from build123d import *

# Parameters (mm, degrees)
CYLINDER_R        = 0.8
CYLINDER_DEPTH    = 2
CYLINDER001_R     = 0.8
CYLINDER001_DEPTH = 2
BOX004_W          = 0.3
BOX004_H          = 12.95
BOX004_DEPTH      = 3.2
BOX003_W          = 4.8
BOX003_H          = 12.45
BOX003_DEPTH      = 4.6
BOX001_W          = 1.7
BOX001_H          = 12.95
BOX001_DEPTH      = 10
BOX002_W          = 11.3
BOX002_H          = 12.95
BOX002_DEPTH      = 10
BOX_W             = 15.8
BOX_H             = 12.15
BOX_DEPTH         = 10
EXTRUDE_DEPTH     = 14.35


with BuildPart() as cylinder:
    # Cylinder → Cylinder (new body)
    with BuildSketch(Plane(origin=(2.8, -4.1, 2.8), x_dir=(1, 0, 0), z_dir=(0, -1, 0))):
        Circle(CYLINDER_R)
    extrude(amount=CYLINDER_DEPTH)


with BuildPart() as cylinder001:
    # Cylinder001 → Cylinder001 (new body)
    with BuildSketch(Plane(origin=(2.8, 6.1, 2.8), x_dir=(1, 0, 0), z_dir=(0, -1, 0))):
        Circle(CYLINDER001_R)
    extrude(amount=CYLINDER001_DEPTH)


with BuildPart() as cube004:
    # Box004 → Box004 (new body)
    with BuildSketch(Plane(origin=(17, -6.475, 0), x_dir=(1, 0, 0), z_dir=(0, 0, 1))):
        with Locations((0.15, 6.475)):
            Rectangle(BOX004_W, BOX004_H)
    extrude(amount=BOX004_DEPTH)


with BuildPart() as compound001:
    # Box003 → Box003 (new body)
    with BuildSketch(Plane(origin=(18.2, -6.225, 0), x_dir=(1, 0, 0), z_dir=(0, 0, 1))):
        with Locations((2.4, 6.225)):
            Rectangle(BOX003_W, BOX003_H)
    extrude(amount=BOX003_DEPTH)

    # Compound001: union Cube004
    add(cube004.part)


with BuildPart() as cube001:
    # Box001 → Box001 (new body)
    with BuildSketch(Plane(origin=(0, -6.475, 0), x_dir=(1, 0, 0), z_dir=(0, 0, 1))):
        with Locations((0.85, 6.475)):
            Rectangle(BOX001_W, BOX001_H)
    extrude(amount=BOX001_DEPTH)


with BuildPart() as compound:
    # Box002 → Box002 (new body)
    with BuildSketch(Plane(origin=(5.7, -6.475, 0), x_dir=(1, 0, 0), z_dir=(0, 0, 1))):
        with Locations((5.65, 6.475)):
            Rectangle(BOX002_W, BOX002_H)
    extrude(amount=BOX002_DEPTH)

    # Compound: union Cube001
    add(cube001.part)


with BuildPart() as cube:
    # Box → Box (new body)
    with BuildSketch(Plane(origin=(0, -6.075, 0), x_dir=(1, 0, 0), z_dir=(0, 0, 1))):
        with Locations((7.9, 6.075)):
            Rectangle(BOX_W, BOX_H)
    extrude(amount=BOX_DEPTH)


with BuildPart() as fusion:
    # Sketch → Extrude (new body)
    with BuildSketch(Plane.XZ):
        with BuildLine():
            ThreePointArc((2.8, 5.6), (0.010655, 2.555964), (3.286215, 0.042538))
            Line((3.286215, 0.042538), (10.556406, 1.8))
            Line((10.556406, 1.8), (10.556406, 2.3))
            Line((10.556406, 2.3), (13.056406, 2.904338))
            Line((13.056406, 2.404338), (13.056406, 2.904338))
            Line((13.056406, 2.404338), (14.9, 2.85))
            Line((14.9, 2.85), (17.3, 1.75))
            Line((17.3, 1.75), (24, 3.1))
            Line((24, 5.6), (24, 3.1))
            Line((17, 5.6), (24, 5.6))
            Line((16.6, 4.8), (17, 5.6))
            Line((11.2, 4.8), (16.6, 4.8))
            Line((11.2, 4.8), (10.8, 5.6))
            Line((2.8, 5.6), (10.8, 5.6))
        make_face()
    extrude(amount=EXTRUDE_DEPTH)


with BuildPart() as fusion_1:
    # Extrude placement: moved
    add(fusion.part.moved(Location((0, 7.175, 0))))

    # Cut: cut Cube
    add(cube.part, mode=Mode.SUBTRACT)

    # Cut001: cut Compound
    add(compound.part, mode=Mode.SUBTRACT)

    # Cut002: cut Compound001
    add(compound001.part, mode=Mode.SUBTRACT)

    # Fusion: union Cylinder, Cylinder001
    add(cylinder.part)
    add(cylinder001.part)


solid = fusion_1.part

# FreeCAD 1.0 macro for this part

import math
import FreeCAD as App
import Part
import Sketcher
from FreeCAD import Vector
Q = App.Units.Quantity

doc = App.newDocument("Part")
body = doc.addObject("PartDesign::Body", "Body")

sketch1 = doc.addObject("Sketcher::SketchObject", "Sketch")
body.addObject(sketch1)
sketch1.AttachmentSupport = (doc.XZ_Plane, [""])
sketch1.MapMode = "FlatFace"
sketch1.AttachmentOffset = App.Placement(Vector(0, 0, 4.1), App.Rotation())
sketch1.addGeometry(Part.Circle(Vector(2.8, 2.8, 0), Vector(0, 0, 1), 0.8), False)
sketch1.addConstraint([
    Sketcher.Constraint("Diameter", 0, Q("1.6 mm")),
    Sketcher.Constraint("DistanceX", -1, 1, 0, 3, Q("2.8 mm")),
    Sketcher.Constraint("DistanceY", -1, 1, 0, 3, Q("2.8 mm")),
])
pad1 = doc.addObject("PartDesign::Pad", "Pad")
body.addObject(pad1)
pad1.Profile = sketch1
pad1.Length = 2
body2 = doc.addObject("PartDesign::Body", "Body001")

sketch2 = doc.addObject("Sketcher::SketchObject", "Sketch001")
body2.addObject(sketch2)
sketch2.AttachmentSupport = (doc.getObject("XZ_Plane001"), [""])
sketch2.MapMode = "FlatFace"
sketch2.AttachmentOffset = App.Placement(Vector(0, 0, -6.1), App.Rotation())
sketch2.addGeometry(Part.Circle(Vector(2.8, 2.8, 0), Vector(0, 0, 1), 0.8), False)
sketch2.addConstraint([
    Sketcher.Constraint("Diameter", 0, Q("1.6 mm")),
    Sketcher.Constraint("DistanceX", -1, 1, 0, 3, Q("2.8 mm")),
    Sketcher.Constraint("DistanceY", -1, 1, 0, 3, Q("2.8 mm")),
])
pad2 = doc.addObject("PartDesign::Pad", "Pad001")
body2.addObject(pad2)
pad2.Profile = sketch2
pad2.Length = 2
body3 = doc.addObject("PartDesign::Body", "Body002")

sketch3 = doc.addObject("Sketcher::SketchObject", "Sketch002")
body3.addObject(sketch3)
sketch3.AttachmentSupport = (doc.getObject("XY_Plane002"), [""])
sketch3.MapMode = "FlatFace"
sketch3.addGeometry([
    Part.LineSegment(Vector(17, 6.47, 0), Vector(17, -6.47, 0)),
    Part.LineSegment(Vector(17, -6.47, 0), Vector(17.3, -6.47, 0)),
    Part.LineSegment(Vector(17.3, -6.47, 0), Vector(17.3, 6.47, 0)),
    Part.LineSegment(Vector(17.3, 6.47, 0), Vector(17, 6.47, 0)),
], False)
sketch3.addConstraint([
    Sketcher.Constraint("Coincident", 0, 2, 1, 1),
    Sketcher.Constraint("Coincident", 1, 2, 2, 1),
    Sketcher.Constraint("Coincident", 2, 2, 3, 1),
    Sketcher.Constraint("Coincident", 3, 2, 0, 1),
    Sketcher.Constraint("Vertical", 0),
    Sketcher.Constraint("Horizontal", 1),
    Sketcher.Constraint("Vertical", 2),
    Sketcher.Constraint("Horizontal", 3),
    Sketcher.Constraint("DistanceX", 1, 1, 1, 2, Q("0.3 mm")),
    Sketcher.Constraint("DistanceX", -1, 1, 0, 2, Q("17 mm")),
    Sketcher.Constraint("DistanceY", 0, 2, 0, 1, Q("12.95 mm")),
    Sketcher.Constraint("DistanceY", 0, 2, -1, 1, Q("6.475 mm")),
])
pad3 = doc.addObject("PartDesign::Pad", "Pad002")
body3.addObject(pad3)
pad3.Profile = sketch3
pad3.Length = 3.2
body4 = doc.addObject("PartDesign::Body", "Body003")
body4.AllowCompound = True

sketch4 = doc.addObject("Sketcher::SketchObject", "Sketch003")
body4.addObject(sketch4)
sketch4.AttachmentSupport = (doc.getObject("XY_Plane003"), [""])
sketch4.MapMode = "FlatFace"
sketch4.addGeometry([
    Part.LineSegment(Vector(18.2, 6.2, 0), Vector(18.2, -6.2, 0)),
    Part.LineSegment(Vector(18.2, -6.2, 0), Vector(23, -6.2, 0)),
    Part.LineSegment(Vector(23, -6.2, 0), Vector(23, 6.2, 0)),
    Part.LineSegment(Vector(23, 6.2, 0), Vector(18.2, 6.2, 0)),
], False)
sketch4.addConstraint([
    Sketcher.Constraint("Coincident", 0, 2, 1, 1),
    Sketcher.Constraint("Coincident", 1, 2, 2, 1),
    Sketcher.Constraint("Coincident", 2, 2, 3, 1),
    Sketcher.Constraint("Coincident", 3, 2, 0, 1),
    Sketcher.Constraint("Vertical", 0),
    Sketcher.Constraint("Horizontal", 1),
    Sketcher.Constraint("Vertical", 2),
    Sketcher.Constraint("Horizontal", 3),
    Sketcher.Constraint("DistanceX", 1, 1, 1, 2, Q("4.8 mm")),
    Sketcher.Constraint("DistanceX", -1, 1, 1, 2, Q("23 mm")),
    Sketcher.Constraint("DistanceY", 0, 2, 0, 1, Q("12.45 mm")),
    Sketcher.Constraint("DistanceY", 0, 2, -1, 1, Q("6.225 mm")),
])
pad4 = doc.addObject("PartDesign::Pad", "Pad003")
body4.addObject(pad4)
pad4.Profile = sketch4
pad4.Length = 4.6
doc.recompute()

boolean = doc.addObject("PartDesign::Boolean", "Boolean")
body4.addObject(boolean)
boolean.Type = "Fuse"
boolean.addObjects([body3])
body5 = doc.addObject("PartDesign::Body", "Body004")

sketch5 = doc.addObject("Sketcher::SketchObject", "Sketch004")
body5.addObject(sketch5)
sketch5.AttachmentSupport = (doc.getObject("XY_Plane004"), [""])
sketch5.MapMode = "FlatFace"
sketch5.addGeometry([
    Part.LineSegment(Vector(0, 6.5, 0), Vector(0, -6.5, 0)),
    Part.LineSegment(Vector(0, -6.5, 0), Vector(1.7, -6.5, 0)),
    Part.LineSegment(Vector(1.7, -6.5, 0), Vector(1.7, 6.5, 0)),
    Part.LineSegment(Vector(1.7, 6.5, 0), Vector(0, 6.5, 0)),
], False)
sketch5.addConstraint([
    Sketcher.Constraint("Coincident", 0, 2, 1, 1),
    Sketcher.Constraint("Coincident", 1, 2, 2, 1),
    Sketcher.Constraint("Coincident", 2, 2, 3, 1),
    Sketcher.Constraint("Coincident", 3, 2, 0, 1),
    Sketcher.Constraint("Vertical", 0),
    Sketcher.Constraint("Horizontal", 1),
    Sketcher.Constraint("Vertical", 2),
    Sketcher.Constraint("Horizontal", 3),
    Sketcher.Constraint("Symmetric", 0, 2, 3, 2, -1, 1),
    Sketcher.Constraint("DistanceX", 1, 1, 1, 2, Q("1.7 mm")),
    Sketcher.Constraint("DistanceY", 0, 2, 0, 1, Q("12.95 mm")),
])
pad5 = doc.addObject("PartDesign::Pad", "Pad004")
body5.addObject(pad5)
pad5.Profile = sketch5
pad5.Length = 10
body6 = doc.addObject("PartDesign::Body", "Body005")
body6.AllowCompound = True

sketch6 = doc.addObject("Sketcher::SketchObject", "Sketch005")
body6.addObject(sketch6)
sketch6.AttachmentSupport = (doc.getObject("XY_Plane005"), [""])
sketch6.MapMode = "FlatFace"
sketch6.addGeometry([
    Part.LineSegment(Vector(6, 6, 0), Vector(6, -6, 0)),
    Part.LineSegment(Vector(6, -6, 0), Vector(17, -6, 0)),
    Part.LineSegment(Vector(17, -6, 0), Vector(17, 6, 0)),
    Part.LineSegment(Vector(17, 6, 0), Vector(6, 6, 0)),
], False)
sketch6.addConstraint([
    Sketcher.Constraint("Coincident", 0, 2, 1, 1),
    Sketcher.Constraint("Coincident", 1, 2, 2, 1),
    Sketcher.Constraint("Coincident", 2, 2, 3, 1),
    Sketcher.Constraint("Coincident", 3, 2, 0, 1),
    Sketcher.Constraint("Vertical", 0),
    Sketcher.Constraint("Horizontal", 1),
    Sketcher.Constraint("Vertical", 2),
    Sketcher.Constraint("Horizontal", 3),
    Sketcher.Constraint("DistanceX", 1, 1, 1, 2, Q("11.3 mm")),
    Sketcher.Constraint("DistanceX", -1, 1, 1, 2, Q("17 mm")),
    Sketcher.Constraint("DistanceY", 0, 2, 0, 1, Q("12.95 mm")),
    Sketcher.Constraint("DistanceY", 0, 2, -1, 1, Q("6.475 mm")),
])
pad6 = doc.addObject("PartDesign::Pad", "Pad005")
body6.addObject(pad6)
pad6.Profile = sketch6
pad6.Length = 10
doc.recompute()

boolean2 = doc.addObject("PartDesign::Boolean", "Boolean001")
body6.addObject(boolean2)
boolean2.Type = "Fuse"
boolean2.addObjects([body5])
body7 = doc.addObject("PartDesign::Body", "Body006")

sketch7 = doc.addObject("Sketcher::SketchObject", "Sketch006")
body7.addObject(sketch7)
sketch7.AttachmentSupport = (doc.getObject("XY_Plane006"), [""])
sketch7.MapMode = "FlatFace"
sketch7.addGeometry([
    Part.LineSegment(Vector(0, 6, 0), Vector(0, -6, 0)),
    Part.LineSegment(Vector(0, -6, 0), Vector(16, -6, 0)),
    Part.LineSegment(Vector(16, -6, 0), Vector(16, 6, 0)),
    Part.LineSegment(Vector(16, 6, 0), Vector(0, 6, 0)),
], False)
sketch7.addConstraint([
    Sketcher.Constraint("Coincident", 0, 2, 1, 1),
    Sketcher.Constraint("Coincident", 1, 2, 2, 1),
    Sketcher.Constraint("Coincident", 2, 2, 3, 1),
    Sketcher.Constraint("Coincident", 3, 2, 0, 1),
    Sketcher.Constraint("Vertical", 0),
    Sketcher.Constraint("Horizontal", 1),
    Sketcher.Constraint("Vertical", 2),
    Sketcher.Constraint("Horizontal", 3),
    Sketcher.Constraint("Symmetric", 0, 2, 3, 2, -1, 1),
    Sketcher.Constraint("DistanceX", 1, 1, 1, 2, Q("15.8 mm")),
    Sketcher.Constraint("DistanceY", 0, 2, 0, 1, Q("12.15 mm")),
])
pad7 = doc.addObject("PartDesign::Pad", "Pad006")
body7.addObject(pad7)
pad7.Profile = sketch7
pad7.Length = 10
body8 = doc.addObject("PartDesign::Body", "Body007")

sketch8 = doc.addObject("Sketcher::SketchObject", "Sketch007")
body8.addObject(sketch8)
sketch8.AttachmentSupport = (doc.getObject("XZ_Plane007"), [""])
sketch8.MapMode = "FlatFace"
sketch8.addGeometry([
    Part.ArcOfCircle(Part.Circle(Vector(2.8, 2.8, 0), Vector(0, 0, 1), 2.8), math.radians(90), math.radians(280)),
    Part.LineSegment(Vector(3.29, 0.04, 0), Vector(10.56, 1.8, 0)),
    Part.LineSegment(Vector(10.56, 1.8, 0), Vector(10.56, 2.3, 0)),
    Part.LineSegment(Vector(10.56, 2.3, 0), Vector(13.06, 2.9, 0)),
    Part.LineSegment(Vector(13.06, 2.9, 0), Vector(13.06, 2.4, 0)),
    Part.LineSegment(Vector(13.06, 2.4, 0), Vector(14.9, 2.85, 0)),
    Part.LineSegment(Vector(14.9, 2.85, 0), Vector(17.3, 1.75, 0)),
    Part.LineSegment(Vector(17.3, 1.75, 0), Vector(24, 3.1, 0)),
    Part.LineSegment(Vector(24, 3.1, 0), Vector(24, 5.6, 0)),
    Part.LineSegment(Vector(24, 5.6, 0), Vector(17, 5.6, 0)),
    Part.LineSegment(Vector(17, 5.6, 0), Vector(16.6, 4.8, 0)),
    Part.LineSegment(Vector(16.6, 4.8, 0), Vector(11.2, 4.8, 0)),
    Part.LineSegment(Vector(11.2, 4.8, 0), Vector(10.8, 5.6, 0)),
    Part.LineSegment(Vector(10.8, 5.6, 0), Vector(2.8, 5.6, 0)),
], False)
sketch8.addConstraint([
    Sketcher.Constraint("Coincident", 0, 2, 1, 1),
    Sketcher.Constraint("Coincident", 1, 2, 2, 1),
    Sketcher.Constraint("Coincident", 2, 2, 3, 1),
    Sketcher.Constraint("Coincident", 3, 2, 4, 1),
    Sketcher.Constraint("Coincident", 4, 2, 5, 1),
    Sketcher.Constraint("Coincident", 5, 2, 6, 1),
    Sketcher.Constraint("Coincident", 6, 2, 7, 1),
    Sketcher.Constraint("Coincident", 7, 2, 8, 1),
    Sketcher.Constraint("Coincident", 8, 2, 9, 1),
    Sketcher.Constraint("Coincident", 9, 2, 10, 1),
    Sketcher.Constraint("Coincident", 10, 2, 11, 1),
    Sketcher.Constraint("Coincident", 11, 2, 12, 1),
    Sketcher.Constraint("Coincident", 12, 2, 13, 1),
    Sketcher.Constraint("Tangent", 13, 2, 0, 1),
    Sketcher.Constraint("Vertical", 2),
    Sketcher.Constraint("Vertical", 4),
    Sketcher.Constraint("Vertical", 8),
    Sketcher.Constraint("Horizontal", 9),
    Sketcher.Constraint("Horizontal", 11),
    Sketcher.Constraint("Horizontal", 13),
    Sketcher.Constraint("Parallel", 1, 3),
    Sketcher.Constraint("Parallel", 3, 5),
    Sketcher.Constraint("Horizontal", 9, 2, 12, 2),
    Sketcher.Constraint("Equal", 2, 4),
    Sketcher.Constraint("Equal", 10, 12),
    Sketcher.Constraint("Radius", 0, Q("2.8 mm")),
    Sketcher.Constraint("DistanceX", 9, 2, 9, 1, Q("7 mm")),
    Sketcher.Constraint("DistanceX", 13, 2, 13, 1, Q("8 mm")),
    Sketcher.Constraint("DistanceX", 11, 2, 11, 1, Q("5.4 mm")),
    Sketcher.Constraint("DistanceY", 2, 1, 2, 2, Q("0.5 mm")),
    Sketcher.Constraint("DistanceY", 8, 1, 8, 2, Q("2.5 mm")),
    Sketcher.Constraint("DistanceX", -1, 1, 7, 2, Q("24 mm")),
    Sketcher.Constraint("DistanceY", 1, 2, 0, 3, Q("1 mm")),
    Sketcher.Constraint("DistanceY", 1, 2, 11, 2, Q("3 mm")),
    Sketcher.Constraint("DistanceX", -1, 1, 0, 3, Q("2.8 mm")),
    Sketcher.Constraint("DistanceY", -1, 1, 0, 3, Q("2.8 mm")),
    Sketcher.Constraint("DistanceX", -1, 1, 5, 2, Q("14.9 mm")),
    Sketcher.Constraint("DistanceX", -1, 1, 6, 2, Q("17.3 mm")),
    Sketcher.Constraint("DistanceX", 2, 2, 3, 2, Q("2.5 mm")),
    Sketcher.Constraint("DistanceY", 6, 2, 5, 2, Q("1.1 mm")),
    Sketcher.Constraint("DistanceY", -1, 1, 5, 2, Q("2.85 mm")),
    Sketcher.Constraint("DistanceY", 0, 2, 3, 2, Q("2.8618 mm")),
])
pad8 = doc.addObject("PartDesign::Pad", "Pad007")
body8.addObject(pad8)
pad8.Profile = sketch8
pad8.Length = 14.35
body9 = doc.addObject("PartDesign::Body", "Body008")
doc.recompute()

body8.Placement = App.Placement(Vector(0, 7.175, 0), App.Rotation(Vector(0, 0, 1), 0))
boolean3 = doc.addObject("PartDesign::Boolean", "Boolean002")
body9.addObject(boolean3)
boolean3.Type = "Fuse"
boolean3.addObjects([body8])
doc.recompute()

boolean4 = doc.addObject("PartDesign::Boolean", "Boolean003")
body9.addObject(boolean4)
boolean4.Type = "Cut"
boolean4.addObjects([body7])
doc.recompute()

boolean5 = doc.addObject("PartDesign::Boolean", "Boolean004")
body9.addObject(boolean5)
boolean5.Type = "Cut"
boolean5.addObjects([body6])
doc.recompute()

boolean6 = doc.addObject("PartDesign::Boolean", "Boolean005")
body9.addObject(boolean6)
boolean6.Type = "Cut"
boolean6.addObjects([body4])
doc.recompute()

boolean7 = doc.addObject("PartDesign::Boolean", "Boolean006")
body9.addObject(boolean7)
boolean7.Type = "Fuse"
boolean7.addObjects([body])
doc.recompute()

boolean8 = doc.addObject("PartDesign::Boolean", "Boolean007")
body9.addObject(boolean8)
boolean8.Type = "Fuse"
boolean8.addObjects([body2])

doc.recompute()
